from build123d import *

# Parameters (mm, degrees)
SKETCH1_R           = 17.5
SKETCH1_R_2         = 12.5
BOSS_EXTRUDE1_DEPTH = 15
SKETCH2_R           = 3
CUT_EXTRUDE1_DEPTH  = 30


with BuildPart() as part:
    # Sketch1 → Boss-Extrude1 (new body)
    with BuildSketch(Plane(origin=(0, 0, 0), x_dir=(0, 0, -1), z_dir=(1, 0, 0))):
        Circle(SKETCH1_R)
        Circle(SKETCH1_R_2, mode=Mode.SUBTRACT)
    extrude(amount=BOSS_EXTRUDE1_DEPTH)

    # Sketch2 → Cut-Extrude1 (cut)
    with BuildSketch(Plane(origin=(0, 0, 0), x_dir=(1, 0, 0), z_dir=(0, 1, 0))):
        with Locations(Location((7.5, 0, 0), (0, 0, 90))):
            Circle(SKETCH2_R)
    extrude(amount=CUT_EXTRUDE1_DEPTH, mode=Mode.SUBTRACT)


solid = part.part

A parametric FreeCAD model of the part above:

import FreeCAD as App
import Part
import Sketcher
from FreeCAD import Vector
Q = App.Units.Quantity

doc = App.newDocument("Part")
body = doc.addObject("PartDesign::Body", "Body")

# Sketch on YZ plane
sketch1 = body.newObject("Sketcher::SketchObject", "Sketch")
sketch1.AttachmentSupport = (doc.getObject("YZ_Plane"), [""])
sketch1.MapMode = "FlatFace"
sketch1.addGeometry([
    Part.Circle(Vector(0, 0, 0), Vector(0, 0, 1), 17.5),
    Part.Circle(Vector(0, 0, 0), Vector(0, 0, 1), 12.5),
], False)
sketch1.addConstraint([
    Sketcher.Constraint("Coincident", 0, 3, -1, 1),
    Sketcher.Constraint("Coincident", 1, 3, -1, 1),
    Sketcher.Constraint("Diameter", 0, Q("35 mm")),
    Sketcher.Constraint("Diameter", 1, Q("25 mm")),
])
pad1 = body.newObject("PartDesign::Pad", "Pad")
pad1.Profile = sketch1
pad1.Length = 15

# Sketch on XZ plane
sketch2 = body.newObject("Sketcher::SketchObject", "Sketch001")
sketch2.AttachmentSupport = (doc.getObject("XZ_Plane"), [""])
sketch2.MapMode = "FlatFace"
sketch2.addGeometry(Part.Circle(Vector(7.5, 0, 0), Vector(0, 0, 1), 3), False)
sketch2.addConstraint([
    Sketcher.Constraint("PointOnObject", 0, 3, -1),
    Sketcher.Constraint("Diameter", 0, Q("6 mm")),
    Sketcher.Constraint("DistanceX", -1, 1, 0, 3, Q("7.5 mm")),
])
pocket1 = body.newObject("PartDesign::Pocket", "Pocket")
pocket1.Profile = sketch2
pocket1.Length = 30

doc.recompute()
